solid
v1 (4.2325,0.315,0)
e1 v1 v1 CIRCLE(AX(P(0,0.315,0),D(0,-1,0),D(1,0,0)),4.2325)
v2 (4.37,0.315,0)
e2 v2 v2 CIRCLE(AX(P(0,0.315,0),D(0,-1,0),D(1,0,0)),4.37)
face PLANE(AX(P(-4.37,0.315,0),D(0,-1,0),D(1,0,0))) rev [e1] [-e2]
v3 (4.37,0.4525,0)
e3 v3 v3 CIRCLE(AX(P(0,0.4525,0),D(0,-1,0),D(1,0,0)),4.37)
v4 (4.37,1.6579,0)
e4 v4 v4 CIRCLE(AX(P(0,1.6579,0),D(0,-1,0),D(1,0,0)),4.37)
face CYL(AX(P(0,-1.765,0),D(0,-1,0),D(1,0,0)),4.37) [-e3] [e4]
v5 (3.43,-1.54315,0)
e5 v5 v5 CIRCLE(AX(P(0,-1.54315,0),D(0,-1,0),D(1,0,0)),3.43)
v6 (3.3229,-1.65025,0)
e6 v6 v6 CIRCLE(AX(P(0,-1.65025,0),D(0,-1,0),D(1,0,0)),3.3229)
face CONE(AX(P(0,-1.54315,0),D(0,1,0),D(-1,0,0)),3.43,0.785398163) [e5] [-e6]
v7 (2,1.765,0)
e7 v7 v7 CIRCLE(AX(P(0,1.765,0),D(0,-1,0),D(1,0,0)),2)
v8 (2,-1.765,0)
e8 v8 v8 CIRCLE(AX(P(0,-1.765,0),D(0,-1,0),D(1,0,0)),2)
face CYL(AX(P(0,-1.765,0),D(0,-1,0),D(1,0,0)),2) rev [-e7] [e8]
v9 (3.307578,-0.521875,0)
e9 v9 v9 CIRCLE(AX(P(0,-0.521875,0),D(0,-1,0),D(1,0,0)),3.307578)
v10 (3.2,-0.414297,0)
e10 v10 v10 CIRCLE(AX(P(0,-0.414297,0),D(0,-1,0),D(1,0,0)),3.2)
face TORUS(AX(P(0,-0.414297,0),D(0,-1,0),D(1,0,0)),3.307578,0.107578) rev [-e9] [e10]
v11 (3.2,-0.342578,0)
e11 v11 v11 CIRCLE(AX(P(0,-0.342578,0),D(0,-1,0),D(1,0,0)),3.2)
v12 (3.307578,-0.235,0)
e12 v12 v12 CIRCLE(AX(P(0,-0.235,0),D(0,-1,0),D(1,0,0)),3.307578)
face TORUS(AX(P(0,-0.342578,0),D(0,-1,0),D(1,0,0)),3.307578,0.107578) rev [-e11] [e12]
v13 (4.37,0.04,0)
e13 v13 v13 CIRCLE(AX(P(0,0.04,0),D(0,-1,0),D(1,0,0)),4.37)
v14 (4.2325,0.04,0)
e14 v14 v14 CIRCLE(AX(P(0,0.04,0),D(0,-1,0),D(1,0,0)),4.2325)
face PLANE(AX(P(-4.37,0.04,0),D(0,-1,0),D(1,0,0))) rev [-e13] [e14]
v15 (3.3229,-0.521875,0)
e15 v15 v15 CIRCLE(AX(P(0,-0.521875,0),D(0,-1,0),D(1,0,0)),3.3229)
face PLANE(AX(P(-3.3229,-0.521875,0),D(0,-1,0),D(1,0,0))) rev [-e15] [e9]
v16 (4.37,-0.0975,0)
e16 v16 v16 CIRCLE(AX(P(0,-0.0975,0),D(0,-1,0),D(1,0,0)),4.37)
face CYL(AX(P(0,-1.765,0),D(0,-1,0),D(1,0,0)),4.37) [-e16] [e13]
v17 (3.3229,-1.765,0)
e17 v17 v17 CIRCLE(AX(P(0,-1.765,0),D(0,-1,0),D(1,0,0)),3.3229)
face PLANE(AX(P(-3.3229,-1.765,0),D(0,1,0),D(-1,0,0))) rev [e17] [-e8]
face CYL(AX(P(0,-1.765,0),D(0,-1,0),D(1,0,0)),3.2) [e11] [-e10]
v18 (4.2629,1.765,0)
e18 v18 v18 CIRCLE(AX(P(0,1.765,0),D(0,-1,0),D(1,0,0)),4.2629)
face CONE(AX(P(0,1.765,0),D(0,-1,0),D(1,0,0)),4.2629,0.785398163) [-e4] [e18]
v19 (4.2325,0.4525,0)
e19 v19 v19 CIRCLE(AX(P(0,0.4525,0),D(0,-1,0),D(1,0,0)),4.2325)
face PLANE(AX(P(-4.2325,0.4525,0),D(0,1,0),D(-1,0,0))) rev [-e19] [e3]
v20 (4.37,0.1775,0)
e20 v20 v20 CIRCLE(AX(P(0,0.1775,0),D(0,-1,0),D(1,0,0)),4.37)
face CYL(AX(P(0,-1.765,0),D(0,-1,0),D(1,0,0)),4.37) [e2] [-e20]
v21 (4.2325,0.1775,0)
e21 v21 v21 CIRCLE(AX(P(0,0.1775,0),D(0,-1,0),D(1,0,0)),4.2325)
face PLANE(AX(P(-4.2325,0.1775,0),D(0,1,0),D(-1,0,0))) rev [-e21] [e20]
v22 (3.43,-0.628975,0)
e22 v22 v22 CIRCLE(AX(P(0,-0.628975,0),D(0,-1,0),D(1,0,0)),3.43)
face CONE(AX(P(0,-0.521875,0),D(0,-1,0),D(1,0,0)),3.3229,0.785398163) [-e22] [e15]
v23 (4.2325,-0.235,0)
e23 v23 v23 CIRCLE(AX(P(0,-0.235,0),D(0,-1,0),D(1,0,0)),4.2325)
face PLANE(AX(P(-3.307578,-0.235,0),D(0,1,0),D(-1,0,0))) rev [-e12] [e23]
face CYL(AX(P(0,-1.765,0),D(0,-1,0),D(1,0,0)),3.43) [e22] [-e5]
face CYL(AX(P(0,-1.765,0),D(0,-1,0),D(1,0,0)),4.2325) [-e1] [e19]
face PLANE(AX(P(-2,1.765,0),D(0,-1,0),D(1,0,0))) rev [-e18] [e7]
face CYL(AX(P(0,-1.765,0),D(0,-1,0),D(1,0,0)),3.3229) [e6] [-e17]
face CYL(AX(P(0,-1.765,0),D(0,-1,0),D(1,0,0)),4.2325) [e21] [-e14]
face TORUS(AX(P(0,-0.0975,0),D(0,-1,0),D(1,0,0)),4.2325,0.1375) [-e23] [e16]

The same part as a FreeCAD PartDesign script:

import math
import FreeCAD as App
import Part
import Sketcher
Q = App.Units.Quantity

doc = App.newDocument("Part")
body = doc.addObject("PartDesign::Body", "Body")

# Sketch on XY plane
sketch1 = doc.addObject("Sketcher::SketchObject", "Sketch")
body.addObject(sketch1)
sketch1.AttachmentSupport = (doc.XY_Plane, [""])
sketch1.MapMode = "FlatFace"
sketch1.addGeometry(Part.LineSegment(App.Vector(-2, -1.765, 0), App.Vector(-2, 1.765, 0)), False)
sketch1.addGeometry(Part.LineSegment(App.Vector(-2, 1.765, 0), App.Vector(-4.263, 1.765, 0)), False)
sketch1.addGeometry(Part.LineSegment(App.Vector(-4.263, 1.765, 0), App.Vector(-4.37, 1.658, 0)), False)
sketch1.addGeometry(Part.LineSegment(App.Vector(-4.37, 1.658, 0), App.Vector(-4.37, 0.453, 0)), False)
sketch1.addGeometry(Part.LineSegment(App.Vector(-4.37, 0.453, 0), App.Vector(-4.232, 0.453, 0)), False)
sketch1.addGeometry(Part.LineSegment(App.Vector(-4.232, 0.453, 0), App.Vector(-4.232, 0.315, 0)), False)
sketch1.addGeometry(Part.LineSegment(App.Vector(-4.232, 0.315, 0), App.Vector(-4.37, 0.315, 0)), False)
sketch1.addGeometry(Part.LineSegment(App.Vector(-4.37, 0.315, 0), App.Vector(-4.37, 0.177, 0)), False)
sketch1.addGeometry(Part.LineSegment(App.Vector(-4.37, 0.177, 0), App.Vector(-4.232, 0.177, 0)), False)
sketch1.addGeometry(Part.LineSegment(App.Vector(-4.232, 0.177, 0), App.Vector(-4.232, 0.04, 0)), False)
sketch1.addGeometry(Part.LineSegment(App.Vector(-4.232, 0.04, 0), App.Vector(-4.37, 0.04, 0)), False)
sketch1.addGeometry(Part.LineSegment(App.Vector(-4.37, 0.04, 0), App.Vector(-4.37, -0.098, 0)), False)
sketch1.addGeometry(Part.ArcOfCircle(Part.Circle(App.Vector(-4.232, -0.097, 0), App.Vector(0, 0, 1), 0.138), math.radians(-180), math.radians(-90)), False)
sketch1.addGeometry(Part.LineSegment(App.Vector(-4.232, -0.235, 0), App.Vector(-3.308, -0.235, 0)), False)
sketch1.addGeometry(Part.ArcOfCircle(Part.Circle(App.Vector(-3.308, -0.343, 0), App.Vector(0, 0, 1), 0.108), math.radians(0), math.radians(90)), False)
sketch1.addGeometry(Part.LineSegment(App.Vector(-3.2, -0.343, 0), App.Vector(-3.2, -0.414, 0)), False)
sketch1.addGeometry(Part.ArcOfCircle(Part.Circle(App.Vector(-3.308, -0.414, 0), App.Vector(0, 0, 1), 0.108), math.radians(-90), math.radians(0)), False)
sketch1.addGeometry(Part.LineSegment(App.Vector(-3.308, -0.522, 0), App.Vector(-3.323, -0.522, 0)), False)
sketch1.addGeometry(Part.LineSegment(App.Vector(-3.323, -0.522, 0), App.Vector(-3.43, -0.629, 0)), False)
sketch1.addGeometry(Part.LineSegment(App.Vector(-3.43, -0.629, 0), App.Vector(-3.43, -1.543, 0)), False)
sketch1.addGeometry(Part.LineSegment(App.Vector(-3.43, -1.543, 0), App.Vector(-3.323, -1.65, 0)), False)
sketch1.addGeometry(Part.LineSegment(App.Vector(-3.323, -1.65, 0), App.Vector(-3.323, -1.765, 0)), False)
sketch1.addGeometry(Part.LineSegment(App.Vector(-3.323, -1.765, 0), App.Vector(-2, -1.765, 0)), False)
sketch1.addConstraint(Sketcher.Constraint("Coincident", 0, 2, 1, 1))
sketch1.addConstraint(Sketcher.Constraint("Coincident", 1, 2, 2, 1))
sketch1.addConstraint(Sketcher.Constraint("Coincident", 2, 2, 3, 1))
sketch1.addConstraint(Sketcher.Constraint("Coincident", 3, 2, 4, 1))
sketch1.addConstraint(Sketcher.Constraint("Coincident", 4, 2, 5, 1))
sketch1.addConstraint(Sketcher.Constraint("Coincident", 5, 2, 6, 1))
sketch1.addConstraint(Sketcher.Constraint("Coincident", 6, 2, 7, 1))
sketch1.addConstraint(Sketcher.Constraint("Coincident", 7, 2, 8, 1))
sketch1.addConstraint(Sketcher.Constraint("Coincident", 8, 2, 9, 1))
sketch1.addConstraint(Sketcher.Constraint("Coincident", 9, 2, 10, 1))
sketch1.addConstraint(Sketcher.Constraint("Coincident", 10, 2, 11, 1))
sketch1.addConstraint(Sketcher.Constraint("Tangent", 11, 2, 12, 1))
sketch1.addConstraint(Sketcher.Constraint("Tangent", 12, 2, 13, 1))
sketch1.addConstraint(Sketcher.Constraint("Tangent", 13, 2, 14, 2))
sketch1.addConstraint(Sketcher.Constraint("Tangent", 14, 1, 15, 1))
sketch1.addConstraint(Sketcher.Constraint("Tangent", 15, 2, 16, 2))
sketch1.addConstraint(Sketcher.Constraint("Tangent", 16, 1, 17, 1))
sketch1.addConstraint(Sketcher.Constraint("Coincident", 17, 2, 18, 1))
sketch1.addConstraint(Sketcher.Constraint("Coincident", 18, 2, 19, 1))
sketch1.addConstraint(Sketcher.Constraint("Coincident", 19, 2, 20, 1))
sketch1.addConstraint(Sketcher.Constraint("Coincident", 20, 2, 21, 1))
sketch1.addConstraint(Sketcher.Constraint("Coincident", 21, 2, 22, 1))
sketch1.addConstraint(Sketcher.Constraint("Coincident", 22, 2, 0, 1))
sketch1.addConstraint(Sketcher.Constraint("Vertical", 0))
sketch1.addConstraint(Sketcher.Constraint("Horizontal", 1))
sketch1.addConstraint(Sketcher.Constraint("Vertical", 3))
sketch1.addConstraint(Sketcher.Constraint("Horizontal", 4))
sketch1.addConstraint(Sketcher.Constraint("Vertical", 5))
sketch1.addConstraint(Sketcher.Constraint("Horizontal", 6))
sketch1.addConstraint(Sketcher.Constraint("Vertical", 7))
sketch1.addConstraint(Sketcher.Constraint("Horizontal", 8))
sketch1.addConstraint(Sketcher.Constraint("Vertical", 9))
sketch1.addConstraint(Sketcher.Constraint("Horizontal", 10))
sketch1.addConstraint(Sketcher.Constraint("Vertical", 11))
sketch1.addConstraint(Sketcher.Constraint("Horizontal", 13))
sketch1.addConstraint(Sketcher.Constraint("Vertical", 15))
sketch1.addConstraint(Sketcher.Constraint("Horizontal", 17))
sketch1.addConstraint(Sketcher.Constraint("Vertical", 19))
sketch1.addConstraint(Sketcher.Constraint("Vertical", 21))
sketch1.addConstraint(Sketcher.Constraint("Horizontal", 22))
sketch1.addConstraint(Sketcher.Constraint("Equal", 14, 16))
sketch1.addConstraint(Sketcher.Constraint("Parallel", 2, 18))
sketch1.addConstraint(Sketcher.Constraint("Perpendicular", 18, 20))
sketch1.addConstraint(Sketcher.Constraint("Vertical", 12, 3, 4, 2))
sketch1.addConstraint(Sketcher.Constraint("Vertical", 3, 2, 6, 2))
sketch1.addConstraint(Sketcher.Constraint("Vertical", 5, 2, 8, 2))
sketch1.addConstraint(Sketcher.Constraint("Vertical", 7, 2, 10, 2))
sketch1.addConstraint(Sketcher.Constraint("Vertical", 17, 2, 20, 2))
sketch1.addConstraint(Sketcher.Constraint("Equal", 10, 5))
sketch1.addConstraint(Sketcher.Constraint("Equal", 5, 7))
sketch1.addConstraint(Sketcher.Constraint("Equal", 7, 9))
sketch1.addConstraint(Sketcher.Constraint("Equal", 9, 11))
sketch1.addConstraint(Sketcher.Constraint("Equal", 2, 18))
sketch1.addConstraint(Sketcher.Constraint("Equal", 18, 20))
sketch1.addConstraint(Sketcher.Constraint("DistanceX", 0, 2, -1, 1, Q("2 mm")))
sketch1.addConstraint(Sketcher.Constraint("DistanceY", 0, 1, 0, 2, Q("3.53 mm")))
sketch1.addConstraint(Sketcher.Constraint("DistanceX", 14, 1, -1, 1, Q("3.2 mm")))
sketch1.addConstraint(Sketcher.Constraint("Radius", 12, Q("0.1375 mm")))
sketch1.addConstraint(Sketcher.Constraint("DistanceX", 2, 2, -1, 1, Q("4.37 mm")))
sketch1.addConstraint(Sketcher.Constraint("DistanceY", -1, 1, 9, 2, Q("0.04 mm")))
sketch1.addConstraint(Sketcher.Constraint("DistanceX", 18, 2, -1, 1, Q("3.43 mm")))
sketch1.addConstraint(Sketcher.Constraint("Radius", 14, Q("0.107578 mm")))
sketch1.addConstraint(Sketcher.Constraint("DistanceX", 1, 2, 1, 1, Q("2.2629 mm")))
sketch1.addConstraint(Sketcher.Constraint("DistanceY", 3, 2, 3, 1, Q("1.2054 mm")))
sketch1.addConstraint(Sketcher.Constraint("DistanceY", 15, 2, 15, 1, Q("0.071719 mm")))
sketch1.addConstraint(Sketcher.Constraint("DistanceY", 21, 2, 21, 1, Q("0.11475 mm")))
revolution = doc.addObject("PartDesign::Revolution", "Revolution")
body.addObject(revolution)
revolution.Profile = sketch1
revolution.ReferenceAxis = (sketch1, ["V_Axis"])
revolution.Angle = 360

doc.recompute()
